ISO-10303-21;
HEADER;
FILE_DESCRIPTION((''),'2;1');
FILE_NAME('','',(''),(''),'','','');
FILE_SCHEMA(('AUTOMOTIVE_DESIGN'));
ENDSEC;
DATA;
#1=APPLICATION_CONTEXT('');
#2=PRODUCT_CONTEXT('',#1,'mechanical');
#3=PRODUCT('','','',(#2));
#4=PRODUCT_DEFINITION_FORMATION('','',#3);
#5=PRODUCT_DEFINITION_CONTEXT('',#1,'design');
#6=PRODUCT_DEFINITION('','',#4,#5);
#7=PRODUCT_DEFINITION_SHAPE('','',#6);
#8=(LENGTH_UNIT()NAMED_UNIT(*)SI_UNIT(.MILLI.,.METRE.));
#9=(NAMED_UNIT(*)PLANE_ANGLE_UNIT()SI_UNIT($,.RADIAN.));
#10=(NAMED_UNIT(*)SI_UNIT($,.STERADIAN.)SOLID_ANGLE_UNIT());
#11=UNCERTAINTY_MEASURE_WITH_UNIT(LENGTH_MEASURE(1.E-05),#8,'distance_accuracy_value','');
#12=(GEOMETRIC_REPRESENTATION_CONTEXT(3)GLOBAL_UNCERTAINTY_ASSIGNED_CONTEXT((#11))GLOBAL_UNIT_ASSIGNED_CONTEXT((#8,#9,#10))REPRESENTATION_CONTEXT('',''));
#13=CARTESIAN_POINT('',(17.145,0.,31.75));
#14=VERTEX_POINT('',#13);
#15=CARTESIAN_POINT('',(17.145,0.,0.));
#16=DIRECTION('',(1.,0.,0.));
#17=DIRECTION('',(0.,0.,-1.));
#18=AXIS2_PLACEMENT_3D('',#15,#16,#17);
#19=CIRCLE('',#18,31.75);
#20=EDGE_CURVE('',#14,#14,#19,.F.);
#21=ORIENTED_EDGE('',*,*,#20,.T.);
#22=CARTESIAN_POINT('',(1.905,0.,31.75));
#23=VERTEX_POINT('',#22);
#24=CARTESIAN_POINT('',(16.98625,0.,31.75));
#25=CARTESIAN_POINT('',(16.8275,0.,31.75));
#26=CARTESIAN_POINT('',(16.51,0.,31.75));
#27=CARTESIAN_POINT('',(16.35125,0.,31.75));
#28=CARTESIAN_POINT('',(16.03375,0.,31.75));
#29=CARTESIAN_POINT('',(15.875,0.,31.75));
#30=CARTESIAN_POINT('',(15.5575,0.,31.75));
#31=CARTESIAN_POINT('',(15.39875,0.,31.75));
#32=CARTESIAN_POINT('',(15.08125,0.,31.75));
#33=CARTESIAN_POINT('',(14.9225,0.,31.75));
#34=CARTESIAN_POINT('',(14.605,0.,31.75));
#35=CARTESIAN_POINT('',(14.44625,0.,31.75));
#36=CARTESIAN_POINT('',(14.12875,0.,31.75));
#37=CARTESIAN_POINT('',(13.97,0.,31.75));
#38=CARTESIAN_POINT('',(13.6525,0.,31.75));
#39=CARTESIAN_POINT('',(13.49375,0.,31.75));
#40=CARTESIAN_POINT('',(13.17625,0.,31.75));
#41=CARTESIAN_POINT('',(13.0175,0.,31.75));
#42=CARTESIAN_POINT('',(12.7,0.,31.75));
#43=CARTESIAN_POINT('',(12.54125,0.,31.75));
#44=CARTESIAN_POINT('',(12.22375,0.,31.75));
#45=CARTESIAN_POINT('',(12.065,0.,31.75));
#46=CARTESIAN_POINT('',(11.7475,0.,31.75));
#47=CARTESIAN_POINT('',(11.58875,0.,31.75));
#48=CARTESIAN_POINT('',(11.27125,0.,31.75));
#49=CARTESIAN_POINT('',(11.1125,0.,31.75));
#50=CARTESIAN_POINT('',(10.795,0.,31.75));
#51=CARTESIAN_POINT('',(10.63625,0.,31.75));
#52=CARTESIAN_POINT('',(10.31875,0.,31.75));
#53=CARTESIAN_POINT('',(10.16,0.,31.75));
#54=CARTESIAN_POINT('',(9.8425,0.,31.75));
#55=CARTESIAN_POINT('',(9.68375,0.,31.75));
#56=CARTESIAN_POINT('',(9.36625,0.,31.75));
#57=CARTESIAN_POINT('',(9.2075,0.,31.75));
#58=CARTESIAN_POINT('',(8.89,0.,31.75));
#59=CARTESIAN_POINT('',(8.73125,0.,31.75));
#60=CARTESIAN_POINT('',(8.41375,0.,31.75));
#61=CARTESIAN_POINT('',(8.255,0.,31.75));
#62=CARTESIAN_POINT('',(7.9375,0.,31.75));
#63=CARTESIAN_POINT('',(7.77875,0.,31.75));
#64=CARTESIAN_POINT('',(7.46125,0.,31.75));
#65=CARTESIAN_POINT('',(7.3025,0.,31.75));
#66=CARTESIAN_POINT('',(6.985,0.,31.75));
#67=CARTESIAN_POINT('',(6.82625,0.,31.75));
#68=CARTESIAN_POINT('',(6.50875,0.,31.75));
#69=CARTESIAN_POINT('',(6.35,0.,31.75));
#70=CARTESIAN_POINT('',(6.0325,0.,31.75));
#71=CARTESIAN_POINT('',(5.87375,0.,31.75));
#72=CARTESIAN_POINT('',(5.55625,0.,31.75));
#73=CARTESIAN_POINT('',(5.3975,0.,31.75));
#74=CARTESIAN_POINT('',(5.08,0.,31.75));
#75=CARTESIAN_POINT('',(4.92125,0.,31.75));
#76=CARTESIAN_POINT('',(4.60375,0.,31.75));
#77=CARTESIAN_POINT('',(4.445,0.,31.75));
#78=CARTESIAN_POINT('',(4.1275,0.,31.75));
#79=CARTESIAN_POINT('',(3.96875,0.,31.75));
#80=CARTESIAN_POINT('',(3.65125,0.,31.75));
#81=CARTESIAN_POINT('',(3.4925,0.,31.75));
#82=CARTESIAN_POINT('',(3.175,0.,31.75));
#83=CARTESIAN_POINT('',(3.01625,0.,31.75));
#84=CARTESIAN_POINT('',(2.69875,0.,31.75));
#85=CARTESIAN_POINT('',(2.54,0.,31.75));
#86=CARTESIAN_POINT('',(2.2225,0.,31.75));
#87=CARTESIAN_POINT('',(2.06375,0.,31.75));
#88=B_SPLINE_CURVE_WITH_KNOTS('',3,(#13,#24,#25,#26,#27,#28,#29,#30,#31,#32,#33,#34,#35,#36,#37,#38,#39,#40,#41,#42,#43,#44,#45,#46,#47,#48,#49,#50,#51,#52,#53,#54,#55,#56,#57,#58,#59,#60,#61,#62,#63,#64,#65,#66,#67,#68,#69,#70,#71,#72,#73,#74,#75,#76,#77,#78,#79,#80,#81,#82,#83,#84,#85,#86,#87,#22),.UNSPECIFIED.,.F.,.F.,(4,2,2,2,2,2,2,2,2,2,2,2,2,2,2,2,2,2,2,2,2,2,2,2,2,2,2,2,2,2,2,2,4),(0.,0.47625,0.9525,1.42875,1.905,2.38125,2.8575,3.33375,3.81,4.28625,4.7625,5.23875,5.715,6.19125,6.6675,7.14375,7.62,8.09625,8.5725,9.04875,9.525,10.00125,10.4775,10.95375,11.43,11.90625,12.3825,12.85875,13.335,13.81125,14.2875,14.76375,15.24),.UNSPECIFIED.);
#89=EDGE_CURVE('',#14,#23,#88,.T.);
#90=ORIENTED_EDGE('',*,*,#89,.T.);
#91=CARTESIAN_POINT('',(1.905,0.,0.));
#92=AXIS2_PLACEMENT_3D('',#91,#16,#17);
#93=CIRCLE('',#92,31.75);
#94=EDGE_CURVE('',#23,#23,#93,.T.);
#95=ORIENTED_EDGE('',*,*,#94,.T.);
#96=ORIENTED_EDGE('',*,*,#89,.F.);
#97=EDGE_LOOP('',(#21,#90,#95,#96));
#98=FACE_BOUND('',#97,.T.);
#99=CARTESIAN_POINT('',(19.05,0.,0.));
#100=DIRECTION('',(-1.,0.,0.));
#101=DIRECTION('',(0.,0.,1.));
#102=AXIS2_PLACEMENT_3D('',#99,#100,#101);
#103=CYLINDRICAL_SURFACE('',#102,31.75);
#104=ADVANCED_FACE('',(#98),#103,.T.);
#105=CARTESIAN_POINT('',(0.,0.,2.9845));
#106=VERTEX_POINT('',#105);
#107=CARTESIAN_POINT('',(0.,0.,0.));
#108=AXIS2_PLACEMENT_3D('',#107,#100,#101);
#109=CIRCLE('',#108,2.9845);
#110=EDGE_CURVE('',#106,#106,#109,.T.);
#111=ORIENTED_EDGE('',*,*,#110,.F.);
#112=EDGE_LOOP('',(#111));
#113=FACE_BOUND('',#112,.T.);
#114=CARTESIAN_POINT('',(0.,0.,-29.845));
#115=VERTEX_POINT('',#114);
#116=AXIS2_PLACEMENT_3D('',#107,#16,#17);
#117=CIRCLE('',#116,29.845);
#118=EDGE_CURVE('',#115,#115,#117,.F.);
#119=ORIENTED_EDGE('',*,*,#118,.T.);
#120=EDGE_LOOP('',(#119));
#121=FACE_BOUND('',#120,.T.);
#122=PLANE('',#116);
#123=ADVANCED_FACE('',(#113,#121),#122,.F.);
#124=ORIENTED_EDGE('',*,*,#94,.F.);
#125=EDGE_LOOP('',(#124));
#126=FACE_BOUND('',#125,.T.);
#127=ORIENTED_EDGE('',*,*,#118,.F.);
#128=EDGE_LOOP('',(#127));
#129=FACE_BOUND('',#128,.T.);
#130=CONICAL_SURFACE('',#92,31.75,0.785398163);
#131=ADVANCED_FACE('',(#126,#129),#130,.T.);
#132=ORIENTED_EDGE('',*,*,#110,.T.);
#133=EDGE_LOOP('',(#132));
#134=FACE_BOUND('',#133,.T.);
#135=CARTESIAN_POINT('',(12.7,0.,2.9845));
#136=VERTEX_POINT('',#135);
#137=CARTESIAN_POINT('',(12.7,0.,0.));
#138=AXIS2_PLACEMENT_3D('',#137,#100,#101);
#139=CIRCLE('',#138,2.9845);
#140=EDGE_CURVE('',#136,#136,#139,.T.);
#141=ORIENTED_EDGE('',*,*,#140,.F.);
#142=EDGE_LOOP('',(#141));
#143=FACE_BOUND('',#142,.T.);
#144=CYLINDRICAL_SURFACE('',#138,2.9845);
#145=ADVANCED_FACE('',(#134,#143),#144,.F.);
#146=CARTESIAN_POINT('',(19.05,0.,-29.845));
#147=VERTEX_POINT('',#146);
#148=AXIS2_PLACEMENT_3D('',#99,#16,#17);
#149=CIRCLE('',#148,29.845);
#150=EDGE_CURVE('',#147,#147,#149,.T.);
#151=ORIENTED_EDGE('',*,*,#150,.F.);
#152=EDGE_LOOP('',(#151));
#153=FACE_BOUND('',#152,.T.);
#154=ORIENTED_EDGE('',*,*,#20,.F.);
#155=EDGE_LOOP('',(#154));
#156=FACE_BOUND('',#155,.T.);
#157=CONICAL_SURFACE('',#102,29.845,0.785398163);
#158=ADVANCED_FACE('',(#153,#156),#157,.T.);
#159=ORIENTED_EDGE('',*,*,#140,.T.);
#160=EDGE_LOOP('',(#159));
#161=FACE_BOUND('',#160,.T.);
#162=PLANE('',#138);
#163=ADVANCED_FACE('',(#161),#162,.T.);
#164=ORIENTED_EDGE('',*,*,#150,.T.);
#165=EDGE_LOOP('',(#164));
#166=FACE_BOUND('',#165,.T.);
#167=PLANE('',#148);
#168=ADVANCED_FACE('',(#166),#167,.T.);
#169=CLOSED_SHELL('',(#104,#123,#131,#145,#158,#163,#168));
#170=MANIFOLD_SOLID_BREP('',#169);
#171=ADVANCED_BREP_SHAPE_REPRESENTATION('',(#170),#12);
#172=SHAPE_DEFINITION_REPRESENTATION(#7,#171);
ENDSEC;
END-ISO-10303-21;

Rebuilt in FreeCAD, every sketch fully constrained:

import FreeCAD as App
import Part
import Sketcher

V = App.Vector
Q = App.Units.Quantity


def edges_at(feature, points):
    """Names of the edges that pass closest to the given points."""
    edges = feature.Shape.Edges
    near = lambda p: min(range(len(edges)), key=lambda i: edges[i].distToShape(Part.Vertex(*p))[0])
    return sorted({f"Edge{near(p) + 1}" for p in points})

doc = App.newDocument("Part")
body = doc.addObject("PartDesign::Body", "Body")

# Sketch on YZ plane
sketch1 = doc.addObject("Sketcher::SketchObject", "Sketch")
body.addObject(sketch1)
sketch1.AttachmentSupport = (doc.YZ_Plane, [""])
sketch1.MapMode = "FlatFace"
sketch1.addGeometry(Part.Circle(V(0, 0, 0), V(0, 0, 1), 32), False)
sketch1.addConstraint(Sketcher.Constraint("Coincident", 0, 3, -1, 1))
sketch1.addConstraint(Sketcher.Constraint("Diameter", 0, Q("2.5 in")))
pad1 = doc.addObject("PartDesign::Pad", "Pad")
body.addObject(pad1)
pad1.Profile = sketch1
pad1.Length = Q("0.75 in")

# Sketch on YZ plane
sketch2 = doc.addObject("Sketcher::SketchObject", "Sketch001")
body.addObject(sketch2)
sketch2.AttachmentSupport = (doc.YZ_Plane, [""])
sketch2.MapMode = "FlatFace"
sketch2.addGeometry(Part.Circle(V(0, 0, 0), V(0, 0, 1), 3), False)
sketch2.addConstraint(Sketcher.Constraint("Coincident", 0, 3, -1, 1))
sketch2.addConstraint(Sketcher.Constraint("Diameter", 0, Q("0.235 in")))
pocket1 = doc.addObject("PartDesign::Pocket", "Pocket")
body.addObject(pocket1)
pocket1.Profile = sketch2
pocket1.Length = Q("0.5 in")
pocket1.Reversed = True
doc.recompute()

chamfer = doc.addObject("PartDesign::Chamfer", "Chamfer")
body.addObject(chamfer)
chamfer.Base = (pocket1, edges_at(pocket1, [(0, 0, -31.75), (19.05, 0, -31.75)]))
chamfer.Size = Q("0.075 in")

doc.recompute()
